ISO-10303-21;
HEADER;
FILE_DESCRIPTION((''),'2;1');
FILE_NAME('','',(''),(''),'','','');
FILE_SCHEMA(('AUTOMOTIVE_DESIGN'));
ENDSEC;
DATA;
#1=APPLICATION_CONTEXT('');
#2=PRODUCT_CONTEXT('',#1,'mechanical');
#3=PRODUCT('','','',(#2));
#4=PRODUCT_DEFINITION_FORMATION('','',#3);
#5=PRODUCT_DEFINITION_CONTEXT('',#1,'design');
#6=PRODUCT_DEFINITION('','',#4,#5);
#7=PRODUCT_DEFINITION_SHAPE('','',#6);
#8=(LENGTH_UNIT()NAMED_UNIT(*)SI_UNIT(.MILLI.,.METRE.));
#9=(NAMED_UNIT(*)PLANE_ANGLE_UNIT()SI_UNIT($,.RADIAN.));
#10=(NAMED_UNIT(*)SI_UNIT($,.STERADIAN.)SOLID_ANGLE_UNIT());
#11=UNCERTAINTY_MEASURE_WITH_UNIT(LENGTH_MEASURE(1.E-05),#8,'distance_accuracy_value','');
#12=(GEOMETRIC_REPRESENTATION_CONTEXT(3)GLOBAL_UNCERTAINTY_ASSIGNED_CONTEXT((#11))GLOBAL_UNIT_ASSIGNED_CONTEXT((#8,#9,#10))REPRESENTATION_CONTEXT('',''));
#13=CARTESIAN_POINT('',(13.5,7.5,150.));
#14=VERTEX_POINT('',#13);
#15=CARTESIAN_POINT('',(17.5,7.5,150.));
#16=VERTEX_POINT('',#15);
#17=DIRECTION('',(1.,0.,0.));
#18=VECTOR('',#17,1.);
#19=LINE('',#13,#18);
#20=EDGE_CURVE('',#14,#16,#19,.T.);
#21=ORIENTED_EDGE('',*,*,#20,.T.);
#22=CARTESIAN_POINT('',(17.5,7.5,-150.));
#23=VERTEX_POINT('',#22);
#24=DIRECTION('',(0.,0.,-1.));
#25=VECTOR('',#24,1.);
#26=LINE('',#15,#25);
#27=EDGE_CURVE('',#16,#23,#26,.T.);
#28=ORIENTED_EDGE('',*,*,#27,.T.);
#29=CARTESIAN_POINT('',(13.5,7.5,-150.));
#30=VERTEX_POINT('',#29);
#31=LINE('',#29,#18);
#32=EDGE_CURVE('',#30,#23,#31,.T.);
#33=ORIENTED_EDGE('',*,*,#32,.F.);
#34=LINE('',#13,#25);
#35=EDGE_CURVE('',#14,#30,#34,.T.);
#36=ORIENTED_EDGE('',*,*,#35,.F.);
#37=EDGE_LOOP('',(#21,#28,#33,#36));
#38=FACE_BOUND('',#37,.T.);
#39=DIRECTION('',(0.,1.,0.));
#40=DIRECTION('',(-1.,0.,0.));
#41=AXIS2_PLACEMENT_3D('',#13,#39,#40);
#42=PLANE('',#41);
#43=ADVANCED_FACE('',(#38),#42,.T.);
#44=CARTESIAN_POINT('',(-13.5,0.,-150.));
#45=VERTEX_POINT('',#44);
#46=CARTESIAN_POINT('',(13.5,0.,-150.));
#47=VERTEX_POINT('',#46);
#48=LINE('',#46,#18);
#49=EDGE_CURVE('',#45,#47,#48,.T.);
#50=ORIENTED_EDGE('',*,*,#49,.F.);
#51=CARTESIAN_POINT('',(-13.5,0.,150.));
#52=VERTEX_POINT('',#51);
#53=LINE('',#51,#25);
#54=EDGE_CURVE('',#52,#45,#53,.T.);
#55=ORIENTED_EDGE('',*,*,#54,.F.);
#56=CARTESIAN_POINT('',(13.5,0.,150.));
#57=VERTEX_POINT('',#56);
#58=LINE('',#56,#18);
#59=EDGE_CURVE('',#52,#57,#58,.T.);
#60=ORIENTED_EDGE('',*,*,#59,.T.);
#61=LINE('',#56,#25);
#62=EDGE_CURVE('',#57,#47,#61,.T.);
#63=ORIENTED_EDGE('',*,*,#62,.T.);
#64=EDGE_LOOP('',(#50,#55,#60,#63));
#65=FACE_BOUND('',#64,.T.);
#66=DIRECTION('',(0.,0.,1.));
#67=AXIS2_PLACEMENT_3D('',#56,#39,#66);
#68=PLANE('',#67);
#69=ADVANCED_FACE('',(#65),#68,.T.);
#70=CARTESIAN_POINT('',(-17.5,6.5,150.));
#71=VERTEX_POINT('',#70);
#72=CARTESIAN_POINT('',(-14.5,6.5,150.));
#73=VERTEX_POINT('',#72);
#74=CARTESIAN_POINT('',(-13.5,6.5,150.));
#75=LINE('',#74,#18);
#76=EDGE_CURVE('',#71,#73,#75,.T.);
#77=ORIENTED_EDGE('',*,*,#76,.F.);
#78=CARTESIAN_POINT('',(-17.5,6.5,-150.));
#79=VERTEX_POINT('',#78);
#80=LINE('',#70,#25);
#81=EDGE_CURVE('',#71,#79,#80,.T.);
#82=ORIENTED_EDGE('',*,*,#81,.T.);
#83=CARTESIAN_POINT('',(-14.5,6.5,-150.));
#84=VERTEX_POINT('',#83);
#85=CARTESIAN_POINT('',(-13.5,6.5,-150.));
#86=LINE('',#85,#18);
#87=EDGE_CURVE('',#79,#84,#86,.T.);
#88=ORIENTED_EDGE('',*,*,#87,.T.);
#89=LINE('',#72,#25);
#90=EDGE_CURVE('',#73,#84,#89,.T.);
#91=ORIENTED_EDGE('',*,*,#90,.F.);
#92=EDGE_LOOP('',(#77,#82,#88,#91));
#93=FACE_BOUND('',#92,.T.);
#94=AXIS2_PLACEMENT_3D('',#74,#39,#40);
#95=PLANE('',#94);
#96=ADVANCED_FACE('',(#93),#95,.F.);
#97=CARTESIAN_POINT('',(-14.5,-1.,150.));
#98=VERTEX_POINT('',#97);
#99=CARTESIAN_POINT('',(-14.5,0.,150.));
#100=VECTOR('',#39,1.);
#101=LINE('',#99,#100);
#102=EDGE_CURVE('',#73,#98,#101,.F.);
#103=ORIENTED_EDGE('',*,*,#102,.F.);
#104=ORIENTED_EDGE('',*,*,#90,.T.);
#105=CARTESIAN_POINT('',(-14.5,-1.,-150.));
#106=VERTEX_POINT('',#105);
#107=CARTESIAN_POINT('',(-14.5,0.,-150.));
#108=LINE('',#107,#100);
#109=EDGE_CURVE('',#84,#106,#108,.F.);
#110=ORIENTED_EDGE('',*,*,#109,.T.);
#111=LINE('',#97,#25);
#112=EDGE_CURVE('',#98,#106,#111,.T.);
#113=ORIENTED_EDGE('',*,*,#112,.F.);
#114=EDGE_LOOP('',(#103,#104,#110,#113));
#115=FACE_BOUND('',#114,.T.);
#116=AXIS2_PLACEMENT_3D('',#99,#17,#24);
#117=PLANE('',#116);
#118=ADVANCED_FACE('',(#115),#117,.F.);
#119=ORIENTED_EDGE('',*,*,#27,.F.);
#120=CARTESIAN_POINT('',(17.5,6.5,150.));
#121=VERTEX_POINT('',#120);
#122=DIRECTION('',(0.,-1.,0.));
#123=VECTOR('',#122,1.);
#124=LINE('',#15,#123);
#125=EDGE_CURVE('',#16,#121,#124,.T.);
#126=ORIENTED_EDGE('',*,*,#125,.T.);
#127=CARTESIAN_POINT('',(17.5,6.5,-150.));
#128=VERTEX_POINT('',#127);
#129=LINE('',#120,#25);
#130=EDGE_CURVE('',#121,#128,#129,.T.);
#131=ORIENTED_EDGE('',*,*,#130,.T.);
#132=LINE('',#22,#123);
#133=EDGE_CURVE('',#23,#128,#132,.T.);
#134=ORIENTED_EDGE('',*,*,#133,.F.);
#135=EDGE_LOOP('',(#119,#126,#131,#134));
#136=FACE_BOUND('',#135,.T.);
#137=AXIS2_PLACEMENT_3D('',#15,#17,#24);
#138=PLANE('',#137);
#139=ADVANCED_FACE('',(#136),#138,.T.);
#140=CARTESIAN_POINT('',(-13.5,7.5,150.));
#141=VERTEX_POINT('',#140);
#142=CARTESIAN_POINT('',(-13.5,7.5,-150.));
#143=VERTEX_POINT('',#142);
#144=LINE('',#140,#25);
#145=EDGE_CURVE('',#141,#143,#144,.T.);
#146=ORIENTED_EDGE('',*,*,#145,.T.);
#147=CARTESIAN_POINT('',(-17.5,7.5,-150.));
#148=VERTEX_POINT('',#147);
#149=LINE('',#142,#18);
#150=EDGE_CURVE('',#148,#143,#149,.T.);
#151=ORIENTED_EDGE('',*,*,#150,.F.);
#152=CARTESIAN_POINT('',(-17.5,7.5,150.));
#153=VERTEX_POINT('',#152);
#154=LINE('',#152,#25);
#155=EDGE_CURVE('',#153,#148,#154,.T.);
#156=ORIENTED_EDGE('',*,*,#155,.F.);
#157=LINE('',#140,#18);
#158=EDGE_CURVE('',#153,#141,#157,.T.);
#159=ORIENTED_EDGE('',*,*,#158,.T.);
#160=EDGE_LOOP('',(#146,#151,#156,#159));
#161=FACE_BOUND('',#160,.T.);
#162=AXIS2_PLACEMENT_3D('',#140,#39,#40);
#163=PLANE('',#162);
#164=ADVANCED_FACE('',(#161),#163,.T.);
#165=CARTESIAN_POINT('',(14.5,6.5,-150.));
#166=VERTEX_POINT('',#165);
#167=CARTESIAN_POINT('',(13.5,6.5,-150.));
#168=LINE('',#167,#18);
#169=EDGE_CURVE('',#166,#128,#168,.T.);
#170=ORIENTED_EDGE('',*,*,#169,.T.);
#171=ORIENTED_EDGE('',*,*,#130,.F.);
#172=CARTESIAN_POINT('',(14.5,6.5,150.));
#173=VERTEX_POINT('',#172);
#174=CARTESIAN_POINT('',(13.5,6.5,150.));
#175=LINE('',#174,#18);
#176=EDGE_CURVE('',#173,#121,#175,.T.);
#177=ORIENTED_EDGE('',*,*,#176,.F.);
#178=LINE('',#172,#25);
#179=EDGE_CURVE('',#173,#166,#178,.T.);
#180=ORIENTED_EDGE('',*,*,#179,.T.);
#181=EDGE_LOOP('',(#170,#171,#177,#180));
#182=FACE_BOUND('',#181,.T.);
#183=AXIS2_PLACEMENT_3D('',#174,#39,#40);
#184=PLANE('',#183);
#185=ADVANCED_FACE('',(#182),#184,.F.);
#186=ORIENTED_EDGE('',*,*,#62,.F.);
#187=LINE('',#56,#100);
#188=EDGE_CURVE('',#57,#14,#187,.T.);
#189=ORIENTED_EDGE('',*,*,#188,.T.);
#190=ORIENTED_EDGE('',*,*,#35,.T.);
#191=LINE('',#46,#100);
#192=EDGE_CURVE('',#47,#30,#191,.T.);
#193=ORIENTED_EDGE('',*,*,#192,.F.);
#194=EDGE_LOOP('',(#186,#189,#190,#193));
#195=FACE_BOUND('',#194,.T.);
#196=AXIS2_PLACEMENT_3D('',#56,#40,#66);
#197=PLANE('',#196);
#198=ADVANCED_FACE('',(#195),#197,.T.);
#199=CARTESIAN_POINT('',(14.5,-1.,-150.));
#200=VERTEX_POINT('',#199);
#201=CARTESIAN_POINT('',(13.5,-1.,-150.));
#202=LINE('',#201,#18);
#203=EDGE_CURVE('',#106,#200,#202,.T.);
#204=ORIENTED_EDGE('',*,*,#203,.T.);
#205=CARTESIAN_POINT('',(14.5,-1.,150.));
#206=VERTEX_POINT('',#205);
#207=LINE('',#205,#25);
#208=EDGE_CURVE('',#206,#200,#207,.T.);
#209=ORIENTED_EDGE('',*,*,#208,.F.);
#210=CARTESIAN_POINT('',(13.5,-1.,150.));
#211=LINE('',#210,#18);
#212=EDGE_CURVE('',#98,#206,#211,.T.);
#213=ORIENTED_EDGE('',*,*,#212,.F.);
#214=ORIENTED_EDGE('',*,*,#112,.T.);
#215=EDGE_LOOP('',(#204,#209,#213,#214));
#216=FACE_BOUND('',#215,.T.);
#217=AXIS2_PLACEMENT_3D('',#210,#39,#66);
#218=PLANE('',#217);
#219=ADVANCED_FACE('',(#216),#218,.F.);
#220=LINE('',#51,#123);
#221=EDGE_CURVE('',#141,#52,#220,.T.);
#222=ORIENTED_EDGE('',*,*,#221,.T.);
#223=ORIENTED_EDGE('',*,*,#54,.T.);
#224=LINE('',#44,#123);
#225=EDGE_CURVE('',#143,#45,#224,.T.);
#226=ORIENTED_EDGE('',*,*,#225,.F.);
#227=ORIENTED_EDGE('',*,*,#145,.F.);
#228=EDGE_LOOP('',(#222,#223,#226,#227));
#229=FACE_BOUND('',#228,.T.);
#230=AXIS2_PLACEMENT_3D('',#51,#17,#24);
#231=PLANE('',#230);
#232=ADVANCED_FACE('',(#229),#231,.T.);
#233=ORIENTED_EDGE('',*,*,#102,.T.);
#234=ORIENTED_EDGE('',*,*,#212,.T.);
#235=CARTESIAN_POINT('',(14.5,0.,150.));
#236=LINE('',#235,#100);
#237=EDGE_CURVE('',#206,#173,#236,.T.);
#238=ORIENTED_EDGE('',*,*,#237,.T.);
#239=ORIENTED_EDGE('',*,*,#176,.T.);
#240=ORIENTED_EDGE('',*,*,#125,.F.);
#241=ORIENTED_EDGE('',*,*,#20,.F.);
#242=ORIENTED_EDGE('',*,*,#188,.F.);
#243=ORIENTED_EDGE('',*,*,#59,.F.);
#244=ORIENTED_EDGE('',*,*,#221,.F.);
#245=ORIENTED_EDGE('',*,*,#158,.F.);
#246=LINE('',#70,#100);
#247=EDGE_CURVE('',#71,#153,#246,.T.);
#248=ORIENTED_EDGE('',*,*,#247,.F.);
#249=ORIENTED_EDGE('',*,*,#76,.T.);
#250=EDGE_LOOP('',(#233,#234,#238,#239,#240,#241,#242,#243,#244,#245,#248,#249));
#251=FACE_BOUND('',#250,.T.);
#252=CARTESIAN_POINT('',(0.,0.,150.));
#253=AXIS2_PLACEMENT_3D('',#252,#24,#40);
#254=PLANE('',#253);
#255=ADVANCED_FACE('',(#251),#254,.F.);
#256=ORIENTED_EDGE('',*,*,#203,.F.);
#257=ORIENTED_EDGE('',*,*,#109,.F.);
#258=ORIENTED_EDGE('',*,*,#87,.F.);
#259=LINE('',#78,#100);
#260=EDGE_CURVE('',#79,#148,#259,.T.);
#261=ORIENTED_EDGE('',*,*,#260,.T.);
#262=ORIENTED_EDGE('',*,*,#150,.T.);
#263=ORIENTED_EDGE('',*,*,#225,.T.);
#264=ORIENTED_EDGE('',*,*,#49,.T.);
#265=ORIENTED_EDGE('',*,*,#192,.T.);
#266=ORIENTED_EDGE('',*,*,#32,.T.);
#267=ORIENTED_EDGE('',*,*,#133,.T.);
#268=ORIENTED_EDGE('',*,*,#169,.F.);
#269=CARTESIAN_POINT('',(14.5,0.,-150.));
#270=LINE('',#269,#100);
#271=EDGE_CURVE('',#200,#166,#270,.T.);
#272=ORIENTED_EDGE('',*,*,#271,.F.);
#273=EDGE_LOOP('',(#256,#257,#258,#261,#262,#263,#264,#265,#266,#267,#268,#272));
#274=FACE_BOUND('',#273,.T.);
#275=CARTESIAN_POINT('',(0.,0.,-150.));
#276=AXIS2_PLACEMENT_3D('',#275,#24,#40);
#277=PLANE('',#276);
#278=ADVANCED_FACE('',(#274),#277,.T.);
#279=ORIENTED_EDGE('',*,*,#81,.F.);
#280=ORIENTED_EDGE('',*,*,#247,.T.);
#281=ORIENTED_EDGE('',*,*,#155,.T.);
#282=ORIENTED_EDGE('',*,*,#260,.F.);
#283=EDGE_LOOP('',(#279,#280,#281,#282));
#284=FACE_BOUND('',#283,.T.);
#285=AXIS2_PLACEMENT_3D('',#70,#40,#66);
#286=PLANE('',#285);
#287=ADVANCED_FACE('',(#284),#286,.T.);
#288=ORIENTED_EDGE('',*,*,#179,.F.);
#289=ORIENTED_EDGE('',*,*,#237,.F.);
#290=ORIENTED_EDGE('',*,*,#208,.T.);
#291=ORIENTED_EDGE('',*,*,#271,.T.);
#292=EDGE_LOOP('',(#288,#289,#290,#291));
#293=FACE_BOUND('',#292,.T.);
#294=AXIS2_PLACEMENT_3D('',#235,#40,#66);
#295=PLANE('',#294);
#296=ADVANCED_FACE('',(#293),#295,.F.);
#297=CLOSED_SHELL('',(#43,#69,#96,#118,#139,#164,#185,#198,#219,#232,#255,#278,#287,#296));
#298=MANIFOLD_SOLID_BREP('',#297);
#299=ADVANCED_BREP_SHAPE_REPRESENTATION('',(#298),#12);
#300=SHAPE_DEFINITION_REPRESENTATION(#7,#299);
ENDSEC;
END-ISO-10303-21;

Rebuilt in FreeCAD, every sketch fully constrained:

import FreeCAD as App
import Part
import Sketcher
from FreeCAD import Vector


def add_polygon(sketch, points):
    """Adds a closed chain of lines whose ends are joined by coincident constraints."""
    first, n = sketch.GeometryCount, len(points)
    for a, b in zip(points, points[1:] + points[:1]):
        sketch.addGeometry(Part.LineSegment(App.Vector(*a, 0), App.Vector(*b, 0)), False)
    for i in range(n):
        sketch.addConstraint(Sketcher.Constraint("Coincident", first + i, 2, first + (i + 1) % n, 1))

doc = App.newDocument("Part")
params = doc.addObject("Spreadsheet::Sheet", "Params")
for row, (alias, value) in enumerate([
    ("sketch1_width", "4 mm"),
    ("sketch1_width2", "27 mm"),
    ("sketch1_width3", "3 mm"),
    ("sketch1_height", "1 mm"),
    ("sketch1_height2", "7.5 mm"),
    ("pad1_length", "300 mm"),
], start=1):
    params.set(f"A{row}", alias)
    params.set(f"B{row}", "=" + value)
    params.setAlias(f"B{row}", alias)

body = doc.addObject("PartDesign::Body", "Body")

sketch1 = body.newObject("Sketcher::SketchObject", "Sketch")
sketch1.AttachmentSupport = (doc.getObject("XY_Plane"), [""])
sketch1.MapMode = "FlatFace"
add_polygon(sketch1, [(17.5, 7.5), (13.5, 7.5), (13.5, 0), (-13.5, 0), (-13.5, 7.5), (-17.5, 7.5), (-17.5, 6.5), (-14.5, 6.5), (-14.5, -1), (14.5, -1), (14.5, 6.5), (17.5, 6.5)])
sketch1.addConstraint([
    Sketcher.Constraint("Horizontal", 0),
    Sketcher.Constraint("Vertical", 1),
    Sketcher.Constraint("Horizontal", 2),
    Sketcher.Constraint("Vertical", 3),
    Sketcher.Constraint("Horizontal", 4),
    Sketcher.Constraint("Vertical", 5),
    Sketcher.Constraint("Horizontal", 6),
    Sketcher.Constraint("Vertical", 7),
    Sketcher.Constraint("Horizontal", 8),
    Sketcher.Constraint("Vertical", 9),
    Sketcher.Constraint("Horizontal", 10),
    Sketcher.Constraint("Vertical", 11),
    Sketcher.Constraint("Symmetric", 1, 2, 2, 2, -1, 1),
    Sketcher.Constraint("Symmetric", 6, 2, 9, 2, -2),
    Sketcher.Constraint("Symmetric", 4, 2, 11, 2, -2),
    Sketcher.Constraint("Equal", 3, 7),
    Sketcher.Constraint("DistanceX", 0, 2, 0, 1, 4.0),
    Sketcher.Constraint("DistanceX", 2, 2, 2, 1, 27.0),
    Sketcher.Constraint("DistanceX", 6, 1, 6, 2, 3.0),
    Sketcher.Constraint("DistanceY", 5, 2, 5, 1, 1.0),
    Sketcher.Constraint("DistanceY", 1, 2, 1, 1, 7.5),
])
sketch1.setExpression("Constraints[28]", "Params.sketch1_width")
sketch1.setExpression("Constraints[29]", "Params.sketch1_width2")
sketch1.setExpression("Constraints[30]", "Params.sketch1_width3")
sketch1.setExpression("Constraints[31]", "Params.sketch1_height")
sketch1.setExpression("Constraints[32]", "Params.sketch1_height2")
pad1 = body.newObject("PartDesign::Pad", "Pad")
pad1.Profile = sketch1
pad1.setExpression("Length", "Params.pad1_length")
pad1.Midplane = True

doc.recompute()
